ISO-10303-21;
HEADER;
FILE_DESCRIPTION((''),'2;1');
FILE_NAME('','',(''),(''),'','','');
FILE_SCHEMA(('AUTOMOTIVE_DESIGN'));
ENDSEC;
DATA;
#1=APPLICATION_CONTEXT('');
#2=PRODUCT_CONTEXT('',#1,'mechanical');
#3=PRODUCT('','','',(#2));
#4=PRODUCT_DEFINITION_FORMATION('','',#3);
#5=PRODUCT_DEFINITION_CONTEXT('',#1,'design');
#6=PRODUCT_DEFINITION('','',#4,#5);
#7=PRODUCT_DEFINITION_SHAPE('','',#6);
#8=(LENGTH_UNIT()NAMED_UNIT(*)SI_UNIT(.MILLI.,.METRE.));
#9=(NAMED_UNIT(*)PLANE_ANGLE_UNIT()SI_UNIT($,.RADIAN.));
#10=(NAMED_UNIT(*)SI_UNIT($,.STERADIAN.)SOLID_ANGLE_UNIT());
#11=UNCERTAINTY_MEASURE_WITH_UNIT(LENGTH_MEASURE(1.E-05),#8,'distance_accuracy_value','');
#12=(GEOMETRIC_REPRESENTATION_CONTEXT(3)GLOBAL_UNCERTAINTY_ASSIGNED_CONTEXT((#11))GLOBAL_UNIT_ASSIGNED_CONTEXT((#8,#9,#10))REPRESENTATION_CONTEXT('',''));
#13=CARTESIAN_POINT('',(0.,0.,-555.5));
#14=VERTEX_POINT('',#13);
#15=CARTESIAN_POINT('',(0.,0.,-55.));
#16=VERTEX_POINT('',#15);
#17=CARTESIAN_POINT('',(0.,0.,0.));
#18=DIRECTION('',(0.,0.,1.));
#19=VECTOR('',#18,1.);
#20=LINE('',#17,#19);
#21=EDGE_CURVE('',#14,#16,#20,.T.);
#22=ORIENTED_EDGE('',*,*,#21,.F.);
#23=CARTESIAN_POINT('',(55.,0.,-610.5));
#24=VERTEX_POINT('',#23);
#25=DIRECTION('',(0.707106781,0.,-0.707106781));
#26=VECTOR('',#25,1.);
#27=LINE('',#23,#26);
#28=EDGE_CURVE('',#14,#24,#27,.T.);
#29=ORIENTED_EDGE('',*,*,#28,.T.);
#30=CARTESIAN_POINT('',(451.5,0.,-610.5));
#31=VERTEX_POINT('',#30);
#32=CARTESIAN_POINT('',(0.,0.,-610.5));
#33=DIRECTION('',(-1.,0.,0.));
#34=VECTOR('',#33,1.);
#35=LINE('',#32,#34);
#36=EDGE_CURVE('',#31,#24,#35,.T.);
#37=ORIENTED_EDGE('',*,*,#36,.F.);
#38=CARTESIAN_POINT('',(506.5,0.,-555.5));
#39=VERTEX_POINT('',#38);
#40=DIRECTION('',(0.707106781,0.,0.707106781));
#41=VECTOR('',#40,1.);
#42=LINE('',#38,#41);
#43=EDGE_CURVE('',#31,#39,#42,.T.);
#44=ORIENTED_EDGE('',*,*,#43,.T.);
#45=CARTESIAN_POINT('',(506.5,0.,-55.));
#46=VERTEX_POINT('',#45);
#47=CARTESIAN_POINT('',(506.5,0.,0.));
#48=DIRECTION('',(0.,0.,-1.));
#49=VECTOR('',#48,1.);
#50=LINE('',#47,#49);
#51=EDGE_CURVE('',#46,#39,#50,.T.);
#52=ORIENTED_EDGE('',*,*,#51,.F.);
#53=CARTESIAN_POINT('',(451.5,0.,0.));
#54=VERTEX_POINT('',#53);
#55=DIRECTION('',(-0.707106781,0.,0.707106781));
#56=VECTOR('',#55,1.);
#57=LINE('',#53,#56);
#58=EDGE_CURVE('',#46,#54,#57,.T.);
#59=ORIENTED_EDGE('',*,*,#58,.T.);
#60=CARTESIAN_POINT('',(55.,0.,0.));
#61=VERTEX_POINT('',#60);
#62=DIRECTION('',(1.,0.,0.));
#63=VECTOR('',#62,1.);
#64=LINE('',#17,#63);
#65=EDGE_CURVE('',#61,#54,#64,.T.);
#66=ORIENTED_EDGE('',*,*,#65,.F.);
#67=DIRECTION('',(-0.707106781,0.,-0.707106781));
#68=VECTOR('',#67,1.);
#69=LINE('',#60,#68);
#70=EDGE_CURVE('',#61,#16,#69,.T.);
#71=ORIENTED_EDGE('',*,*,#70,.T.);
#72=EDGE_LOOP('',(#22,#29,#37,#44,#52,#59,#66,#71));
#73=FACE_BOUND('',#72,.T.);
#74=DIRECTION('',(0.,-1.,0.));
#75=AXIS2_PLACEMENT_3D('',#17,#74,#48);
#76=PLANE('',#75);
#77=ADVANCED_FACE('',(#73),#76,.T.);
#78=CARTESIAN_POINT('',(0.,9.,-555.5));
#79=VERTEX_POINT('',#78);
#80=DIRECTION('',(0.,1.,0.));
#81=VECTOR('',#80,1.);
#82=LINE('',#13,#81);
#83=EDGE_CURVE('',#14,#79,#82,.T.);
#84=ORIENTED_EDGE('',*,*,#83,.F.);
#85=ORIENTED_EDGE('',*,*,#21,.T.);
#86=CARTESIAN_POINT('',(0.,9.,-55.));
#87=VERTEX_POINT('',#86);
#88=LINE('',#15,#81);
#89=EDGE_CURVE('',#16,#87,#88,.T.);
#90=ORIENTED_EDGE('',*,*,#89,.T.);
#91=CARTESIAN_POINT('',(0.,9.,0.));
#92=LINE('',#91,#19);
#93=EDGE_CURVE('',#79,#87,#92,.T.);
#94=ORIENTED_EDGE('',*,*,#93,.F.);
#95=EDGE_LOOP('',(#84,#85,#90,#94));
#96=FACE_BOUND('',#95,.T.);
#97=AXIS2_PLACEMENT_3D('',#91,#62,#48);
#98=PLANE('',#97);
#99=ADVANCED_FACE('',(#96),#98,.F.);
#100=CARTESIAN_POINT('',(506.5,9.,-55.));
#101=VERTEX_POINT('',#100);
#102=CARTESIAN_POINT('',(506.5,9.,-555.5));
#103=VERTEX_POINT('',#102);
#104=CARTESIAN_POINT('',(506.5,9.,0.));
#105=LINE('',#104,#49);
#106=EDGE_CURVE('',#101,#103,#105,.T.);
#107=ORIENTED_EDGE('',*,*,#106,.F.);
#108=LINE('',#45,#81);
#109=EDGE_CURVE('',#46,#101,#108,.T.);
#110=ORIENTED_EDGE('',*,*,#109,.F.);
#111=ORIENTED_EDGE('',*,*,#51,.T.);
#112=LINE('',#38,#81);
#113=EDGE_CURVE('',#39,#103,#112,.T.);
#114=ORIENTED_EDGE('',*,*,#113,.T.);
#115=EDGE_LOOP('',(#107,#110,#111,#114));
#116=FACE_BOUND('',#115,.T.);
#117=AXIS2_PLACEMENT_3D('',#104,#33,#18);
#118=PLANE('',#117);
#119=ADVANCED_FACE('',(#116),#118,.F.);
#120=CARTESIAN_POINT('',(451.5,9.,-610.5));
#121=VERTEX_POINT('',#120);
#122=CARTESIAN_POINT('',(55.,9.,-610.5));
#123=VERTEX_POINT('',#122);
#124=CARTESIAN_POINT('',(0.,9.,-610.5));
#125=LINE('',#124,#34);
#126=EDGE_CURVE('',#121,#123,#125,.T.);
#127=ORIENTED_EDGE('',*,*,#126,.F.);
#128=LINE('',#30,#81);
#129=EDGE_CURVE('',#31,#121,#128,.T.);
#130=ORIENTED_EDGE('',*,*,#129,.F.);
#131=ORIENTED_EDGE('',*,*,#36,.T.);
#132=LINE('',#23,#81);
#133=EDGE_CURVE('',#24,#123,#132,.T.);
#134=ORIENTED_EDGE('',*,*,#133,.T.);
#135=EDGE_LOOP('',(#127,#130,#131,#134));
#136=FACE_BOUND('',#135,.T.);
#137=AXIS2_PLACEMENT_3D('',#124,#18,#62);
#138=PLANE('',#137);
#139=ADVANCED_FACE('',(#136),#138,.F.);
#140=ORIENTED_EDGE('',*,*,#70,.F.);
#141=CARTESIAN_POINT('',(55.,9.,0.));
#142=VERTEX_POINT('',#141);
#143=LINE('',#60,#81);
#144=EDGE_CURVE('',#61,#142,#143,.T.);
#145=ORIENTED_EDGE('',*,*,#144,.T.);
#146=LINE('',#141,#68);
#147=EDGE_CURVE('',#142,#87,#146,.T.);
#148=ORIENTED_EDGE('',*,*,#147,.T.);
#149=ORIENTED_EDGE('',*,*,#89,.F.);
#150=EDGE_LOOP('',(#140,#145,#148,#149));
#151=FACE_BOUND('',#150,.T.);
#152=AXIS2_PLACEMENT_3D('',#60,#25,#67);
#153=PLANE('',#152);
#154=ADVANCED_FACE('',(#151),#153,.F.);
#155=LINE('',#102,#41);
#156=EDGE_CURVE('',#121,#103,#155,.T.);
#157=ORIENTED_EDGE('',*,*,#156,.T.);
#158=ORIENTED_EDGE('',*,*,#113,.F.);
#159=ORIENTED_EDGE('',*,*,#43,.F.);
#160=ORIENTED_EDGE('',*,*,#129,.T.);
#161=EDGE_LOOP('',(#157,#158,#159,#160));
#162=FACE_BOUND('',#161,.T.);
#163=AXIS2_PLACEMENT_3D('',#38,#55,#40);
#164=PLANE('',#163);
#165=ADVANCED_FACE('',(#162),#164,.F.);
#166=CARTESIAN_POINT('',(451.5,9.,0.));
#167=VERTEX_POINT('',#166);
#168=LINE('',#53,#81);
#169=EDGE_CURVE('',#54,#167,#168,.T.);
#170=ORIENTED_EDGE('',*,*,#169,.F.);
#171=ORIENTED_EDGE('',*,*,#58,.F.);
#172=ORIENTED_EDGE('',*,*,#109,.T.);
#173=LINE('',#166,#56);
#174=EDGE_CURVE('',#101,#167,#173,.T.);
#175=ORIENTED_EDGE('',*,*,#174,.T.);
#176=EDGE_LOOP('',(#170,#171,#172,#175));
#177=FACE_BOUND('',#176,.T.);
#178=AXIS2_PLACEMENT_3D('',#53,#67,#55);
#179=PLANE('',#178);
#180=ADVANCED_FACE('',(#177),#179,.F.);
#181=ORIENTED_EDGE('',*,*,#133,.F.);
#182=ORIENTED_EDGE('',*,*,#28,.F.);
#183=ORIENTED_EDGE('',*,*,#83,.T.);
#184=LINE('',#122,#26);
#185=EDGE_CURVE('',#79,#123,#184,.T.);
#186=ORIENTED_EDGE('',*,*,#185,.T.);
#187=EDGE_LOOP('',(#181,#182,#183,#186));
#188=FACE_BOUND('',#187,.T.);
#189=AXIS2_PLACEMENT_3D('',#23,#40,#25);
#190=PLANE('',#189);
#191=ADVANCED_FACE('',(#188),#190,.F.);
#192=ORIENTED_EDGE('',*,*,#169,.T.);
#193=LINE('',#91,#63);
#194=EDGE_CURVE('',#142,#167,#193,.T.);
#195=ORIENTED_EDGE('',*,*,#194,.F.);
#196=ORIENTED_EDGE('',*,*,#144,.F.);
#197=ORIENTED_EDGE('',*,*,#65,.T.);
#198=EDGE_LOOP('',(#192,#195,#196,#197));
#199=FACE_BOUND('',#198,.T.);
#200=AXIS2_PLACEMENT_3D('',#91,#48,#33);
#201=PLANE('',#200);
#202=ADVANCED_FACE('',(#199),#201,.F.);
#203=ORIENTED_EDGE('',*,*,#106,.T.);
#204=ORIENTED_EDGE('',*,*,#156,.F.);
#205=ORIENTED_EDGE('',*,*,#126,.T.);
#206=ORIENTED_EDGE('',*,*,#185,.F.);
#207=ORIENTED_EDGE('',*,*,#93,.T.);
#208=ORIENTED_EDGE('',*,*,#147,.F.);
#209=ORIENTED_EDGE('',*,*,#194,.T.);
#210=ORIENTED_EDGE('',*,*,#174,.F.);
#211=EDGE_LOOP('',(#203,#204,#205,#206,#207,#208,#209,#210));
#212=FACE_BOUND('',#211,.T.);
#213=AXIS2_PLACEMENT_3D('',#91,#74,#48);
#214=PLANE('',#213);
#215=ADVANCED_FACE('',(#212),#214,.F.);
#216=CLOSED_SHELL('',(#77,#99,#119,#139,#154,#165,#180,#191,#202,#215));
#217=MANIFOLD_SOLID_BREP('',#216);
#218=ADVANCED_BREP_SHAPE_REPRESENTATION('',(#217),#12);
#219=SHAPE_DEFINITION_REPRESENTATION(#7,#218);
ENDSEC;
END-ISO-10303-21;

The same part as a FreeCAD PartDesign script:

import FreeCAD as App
import Part
import Sketcher

V = App.Vector

doc = App.newDocument("Part")
params = doc.addObject("Spreadsheet::Sheet", "Params")
for row, (alias, value) in enumerate([
    ("sketch1_width", "506.5 mm"),
    ("sketch1_height", "610.5 mm"),
    ("pad1_length", "9 mm"),
    ("sketch2_width", "55 mm"),
], start=1):
    params.set(f"A{row}", alias)
    params.set(f"B{row}", "=" + value)
    params.setAlias(f"B{row}", alias)

body = doc.addObject("PartDesign::Body", "Body")

# Sketch on XZ plane
sketch1 = body.newObject("Sketcher::SketchObject", "Sketch")
sketch1.AttachmentSupport = (doc.getObject("XZ_Plane"), [""])
sketch1.MapMode = "FlatFace"
sketch1.addGeometry([
    Part.LineSegment(V(0, -610, 0), V(0, 0, 0)),
    Part.LineSegment(V(0, 0, 0), V(506, 0, 0)),
    Part.LineSegment(V(506, 0, 0), V(506, -610, 0)),
    Part.LineSegment(V(506, -610, 0), V(0, -610, 0)),
], False)
sketch1.addConstraint([
    Sketcher.Constraint("Coincident", 0, 2, 1, 1),
    Sketcher.Constraint("Coincident", 1, 2, 2, 1),
    Sketcher.Constraint("Coincident", 2, 2, 3, 1),
    Sketcher.Constraint("Coincident", 3, 2, 0, 1),
    Sketcher.Constraint("Vertical", 0),
    Sketcher.Constraint("Horizontal", 1),
    Sketcher.Constraint("Vertical", 2),
    Sketcher.Constraint("Horizontal", 3),
    Sketcher.Constraint("Coincident", 0, 2, -1, 1),
    Sketcher.Constraint("DistanceX", 1, 1, 1, 2, 506.5),
    Sketcher.Constraint("DistanceY", 0, 1, 0, 2, 610.5),
])
sketch1.setExpression("Constraints[9]", "Params.sketch1_width")
sketch1.setExpression("Constraints[10]", "Params.sketch1_height")
pad1 = body.newObject("PartDesign::Pad", "Pad")
pad1.Profile = sketch1
pad1.setExpression("Length", "Params.pad1_length")
pad1.Reversed = True

# Sketch on XZ plane
sketch2 = body.newObject("Sketcher::SketchObject", "Sketch001")
sketch2.AttachmentSupport = (doc.getObject("XZ_Plane"), [""])
sketch2.MapMode = "FlatFace"
sketch2.AttachmentOffset = App.Placement(V(0, 0, -9), App.Rotation())
sketch2.addGeometry([
    Part.LineSegment(V(0, 0, 0), V(55, 0, 0)),  # 0
    Part.LineSegment(V(55, 0, 0), V(0, -55, 0)),  # 1
    Part.LineSegment(V(0, -55, 0), V(0, 0, 0)),  # 2
    Part.LineSegment(V(452, 0, 0), V(506, 0, 0)),  # 3
    Part.LineSegment(V(506, 0, 0), V(506, -55, 0)),  # 4
    Part.LineSegment(V(506, -55, 0), V(452, 0, 0)),  # 5
    Part.LineSegment(V(506, -556, 0), V(506, -610, 0)),  # 6
    Part.LineSegment(V(506, -610, 0), V(452, -610, 0)),  # 7
    Part.LineSegment(V(452, -610, 0), V(506, -556, 0)),  # 8
    Part.LineSegment(V(55, -610, 0), V(0, -610, 0)),  # 9
    Part.LineSegment(V(0, -610, 0), V(0, -556, 0)),  # 10
    Part.LineSegment(V(0, -556, 0), V(55, -610, 0)),  # 11
], False)
sketch2.addConstraint([
    Sketcher.Constraint("Coincident", 0, 2, 1, 1),
    Sketcher.Constraint("Coincident", 1, 2, 2, 1),
    Sketcher.Constraint("Coincident", 2, 2, 0, 1),
    Sketcher.Constraint("Coincident", 3, 2, 4, 1),
    Sketcher.Constraint("Coincident", 4, 2, 5, 1),
    Sketcher.Constraint("Coincident", 5, 2, 3, 1),
    Sketcher.Constraint("Coincident", 6, 2, 7, 1),
    Sketcher.Constraint("Coincident", 7, 2, 8, 1),
    Sketcher.Constraint("Coincident", 8, 2, 6, 1),
    Sketcher.Constraint("Coincident", 9, 2, 10, 1),
    Sketcher.Constraint("Coincident", 10, 2, 11, 1),
    Sketcher.Constraint("Coincident", 11, 2, 9, 1),
    Sketcher.Constraint("Horizontal", 0),
    Sketcher.Constraint("Vertical", 2),
    Sketcher.Constraint("Horizontal", 3),
    Sketcher.Constraint("Vertical", 4),
    Sketcher.Constraint("Vertical", 6),
    Sketcher.Constraint("Horizontal", 7),
    Sketcher.Constraint("Horizontal", 9),
    Sketcher.Constraint("Vertical", 10),
    Sketcher.Constraint("Coincident", 2, 2, -1, 1),
    Sketcher.Constraint("PointOnObject", 3, 2, -1),
    Sketcher.Constraint("PointOnObject", 9, 2, -2),
    Sketcher.Constraint("Perpendicular", 1, 5),
    Sketcher.Constraint("Perpendicular", 5, 8),
    Sketcher.Constraint("Perpendicular", 8, 11),
    Sketcher.Constraint("Horizontal", 1, 2, 4, 2),
    Sketcher.Constraint("Horizontal", 7, 2, 9, 2),
    Sketcher.Constraint("Horizontal", 8, 2, 10, 2),
    Sketcher.Constraint("Vertical", 4, 2, 6, 2),
    Sketcher.Constraint("Vertical", 5, 2, 7, 2),
    Sketcher.Constraint("Vertical", 0, 2, 11, 2),
    Sketcher.Constraint("DistanceX", 0, 1, 0, 2, 55.0),
    Sketcher.Constraint("DistanceX", -1, 1, 3, 2, 506.5),
    Sketcher.Constraint("DistanceY", 6, 2, -1, 1, 610.5),
])
sketch2.setExpression("Constraints[32]", "Params.sketch2_width")
pocket1 = body.newObject("PartDesign::Pocket", "Pocket")
pocket1.Profile = sketch2
pocket1.Type = "ThroughAll"
pocket1.Reversed = True

doc.recompute()
